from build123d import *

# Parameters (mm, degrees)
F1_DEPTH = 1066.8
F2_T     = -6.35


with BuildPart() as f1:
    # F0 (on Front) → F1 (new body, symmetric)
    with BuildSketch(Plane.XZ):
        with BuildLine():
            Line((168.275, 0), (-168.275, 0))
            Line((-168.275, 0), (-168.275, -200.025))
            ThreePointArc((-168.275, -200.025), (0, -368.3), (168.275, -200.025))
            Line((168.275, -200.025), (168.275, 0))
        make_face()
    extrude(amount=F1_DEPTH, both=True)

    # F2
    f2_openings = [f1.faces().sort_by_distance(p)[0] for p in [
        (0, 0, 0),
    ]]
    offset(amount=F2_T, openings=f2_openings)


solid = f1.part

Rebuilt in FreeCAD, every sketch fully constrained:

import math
import FreeCAD as App
import Part
import Sketcher

V = App.Vector
Q = App.Units.Quantity


def faces_at(feature, points):
    """Names of the faces that lie closest to the given points."""
    faces = feature.Shape.Faces
    near = lambda p: min(range(len(faces)), key=lambda i: faces[i].distToShape(Part.Vertex(*p))[0])
    return sorted({f"Face{near(p) + 1}" for p in points})

doc = App.newDocument("Part")
body = doc.addObject("PartDesign::Body", "Body")

# Sketch on XZ plane
sketch1 = doc.addObject("Sketcher::SketchObject", "Sketch")
body.addObject(sketch1)
sketch1.AttachmentSupport = (doc.XZ_Plane, [""])
sketch1.MapMode = "FlatFace"
sketch1.addGeometry([
    Part.LineSegment(V(168, 0, 0), V(-168, 0, 0)),
    Part.LineSegment(V(-168, 0, 0), V(-168, -200, 0)),
    Part.ArcOfCircle(Part.Circle(V(0, -200, 0), V(0, 0, 1), 168), math.radians(180), math.radians(360)),
    Part.LineSegment(V(168, -200, 0), V(168, 0, 0)),
], False)
sketch1.addConstraint([
    Sketcher.Constraint("Coincident", 0, 2, 1, 1),
    Sketcher.Constraint("Tangent", 1, 2, 2, 1),
    Sketcher.Constraint("Tangent", 2, 2, 3, 1),
    Sketcher.Constraint("Coincident", 3, 2, 0, 1),
    Sketcher.Constraint("Horizontal", 0),
    Sketcher.Constraint("Vertical", 1),
    Sketcher.Constraint("Vertical", 3),
    Sketcher.Constraint("Symmetric", 0, 2, 3, 2, -1, 1),
    Sketcher.Constraint("Radius", 2, Q("6.625 in")),
    Sketcher.Constraint("DistanceY", 1, 2, 1, 1, Q("7.875 in")),
])
pad1 = doc.addObject("PartDesign::Pad", "Pad")
body.addObject(pad1)
pad1.Profile = sketch1
pad1.Length = Q("84 in")
pad1.Midplane = True
doc.recompute()

thickness = doc.addObject("PartDesign::Thickness", "Thickness")
body.addObject(thickness)
thickness.Base = (pad1, faces_at(pad1, [(0, 0, 0)]))
thickness.Value = Q("0.25 in")
thickness.Reversed = True
thickness.Join = "Arc"

doc.recompute()
